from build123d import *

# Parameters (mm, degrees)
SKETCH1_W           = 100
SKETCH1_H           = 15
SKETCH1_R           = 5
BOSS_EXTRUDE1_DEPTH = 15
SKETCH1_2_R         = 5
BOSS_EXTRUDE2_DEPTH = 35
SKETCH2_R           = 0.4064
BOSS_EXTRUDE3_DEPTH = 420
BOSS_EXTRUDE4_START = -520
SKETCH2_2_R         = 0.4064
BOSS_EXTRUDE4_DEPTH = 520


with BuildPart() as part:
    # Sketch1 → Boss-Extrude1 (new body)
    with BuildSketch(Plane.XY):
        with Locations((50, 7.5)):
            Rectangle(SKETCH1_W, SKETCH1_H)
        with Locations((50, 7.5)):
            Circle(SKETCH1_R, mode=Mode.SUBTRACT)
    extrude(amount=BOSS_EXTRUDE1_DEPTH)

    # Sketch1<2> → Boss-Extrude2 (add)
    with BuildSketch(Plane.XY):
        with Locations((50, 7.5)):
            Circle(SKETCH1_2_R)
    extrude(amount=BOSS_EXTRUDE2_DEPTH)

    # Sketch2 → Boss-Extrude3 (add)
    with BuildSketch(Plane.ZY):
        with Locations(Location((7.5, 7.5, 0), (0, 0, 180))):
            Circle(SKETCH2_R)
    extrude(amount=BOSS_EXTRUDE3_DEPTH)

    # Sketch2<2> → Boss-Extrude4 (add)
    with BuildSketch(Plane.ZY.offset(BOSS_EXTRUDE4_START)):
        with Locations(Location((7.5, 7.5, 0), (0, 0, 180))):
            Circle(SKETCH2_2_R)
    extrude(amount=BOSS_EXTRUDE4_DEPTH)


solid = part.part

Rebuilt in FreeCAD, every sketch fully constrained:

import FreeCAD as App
import Part
import Sketcher
from FreeCAD import Vector
Q = App.Units.Quantity


def add_polygon(sketch, points):
    """Adds a closed chain of lines whose ends are joined by coincident constraints."""
    first, n = sketch.GeometryCount, len(points)
    for a, b in zip(points, points[1:] + points[:1]):
        sketch.addGeometry(Part.LineSegment(App.Vector(*a, 0), App.Vector(*b, 0)), False)
    for i in range(n):
        sketch.addConstraint(Sketcher.Constraint("Coincident", first + i, 2, first + (i + 1) % n, 1))

doc = App.newDocument("Part")
body = doc.addObject("PartDesign::Body", "Body")

sketch1 = doc.addObject("Sketcher::SketchObject", "Sketch")
body.addObject(sketch1)
sketch1.AttachmentSupport = (doc.XY_Plane, [""])
sketch1.MapMode = "FlatFace"
add_polygon(sketch1, [(0, 15), (0, 0), (100, 0), (100, 15)])
sketch1.addGeometry(Part.Circle(Vector(50, 8, 0), Vector(0, 0, 1), 5), False)
sketch1.addConstraint(Sketcher.Constraint("Vertical", 0))
sketch1.addConstraint(Sketcher.Constraint("Horizontal", 1))
sketch1.addConstraint(Sketcher.Constraint("Vertical", 2))
sketch1.addConstraint(Sketcher.Constraint("Horizontal", 3))
sketch1.addConstraint(Sketcher.Constraint("Coincident", 0, 2, -1, 1))
sketch1.addConstraint(Sketcher.Constraint("Diameter", 4, Q("10 mm")))
sketch1.addConstraint(Sketcher.Constraint("DistanceX", 1, 1, 1, 2, Q("100 mm")))
sketch1.addConstraint(Sketcher.Constraint("DistanceY", 0, 2, 0, 1, Q("15 mm")))
sketch1.addConstraint(Sketcher.Constraint("DistanceX", -1, 1, 4, 3, Q("50 mm")))
sketch1.addConstraint(Sketcher.Constraint("DistanceY", -1, 1, 4, 3, Q("7.5 mm")))
pad1 = doc.addObject("PartDesign::Pad", "Pad")
body.addObject(pad1)
pad1.Profile = sketch1
pad1.Length = 15

sketch2 = doc.addObject("Sketcher::SketchObject", "Sketch001")
body.addObject(sketch2)
sketch2.AttachmentSupport = (doc.XY_Plane, [""])
sketch2.MapMode = "FlatFace"
sketch2.addGeometry(Part.Circle(Vector(50, 8, 0), Vector(0, 0, 1), 5), False)
sketch2.addConstraint(Sketcher.Constraint("Diameter", 0, Q("10 mm")))
sketch2.addConstraint(Sketcher.Constraint("DistanceX", -1, 1, 0, 3, Q("50 mm")))
sketch2.addConstraint(Sketcher.Constraint("DistanceY", -1, 1, 0, 3, Q("7.5 mm")))
pad2 = doc.addObject("PartDesign::Pad", "Pad001")
body.addObject(pad2)
pad2.Profile = sketch2
pad2.Length = 35

sketch3 = doc.addObject("Sketcher::SketchObject", "Sketch002")
body.addObject(sketch3)
sketch3.AttachmentSupport = (doc.YZ_Plane, [""])
sketch3.MapMode = "FlatFace"
sketch3.addGeometry(Part.Circle(Vector(7.5, 7.5, 0), Vector(0, 0, 1), 0.41), False)
sketch3.addConstraint(Sketcher.Constraint("Diameter", 0, Q("0.8128 mm")))
sketch3.addConstraint(Sketcher.Constraint("DistanceX", -1, 1, 0, 3, Q("7.5 mm")))
sketch3.addConstraint(Sketcher.Constraint("DistanceY", -1, 1, 0, 3, Q("7.5 mm")))
pad3 = doc.addObject("PartDesign::Pad", "Pad002")
body.addObject(pad3)
pad3.Profile = sketch3
pad3.Length = 420
pad3.Reversed = True

sketch4 = doc.addObject("Sketcher::SketchObject", "Sketch003")
body.addObject(sketch4)
sketch4.AttachmentSupport = (doc.YZ_Plane, [""])
sketch4.MapMode = "FlatFace"
sketch4.AttachmentOffset = App.Placement(Vector(0, 0, 520), App.Rotation())
sketch4.addGeometry(Part.Circle(Vector(7.5, 7.5, 0), Vector(0, 0, 1), 0.41), False)
sketch4.addConstraint(Sketcher.Constraint("Diameter", 0, Q("0.8128 mm")))
sketch4.addConstraint(Sketcher.Constraint("DistanceX", -1, 1, 0, 3, Q("7.5 mm")))
sketch4.addConstraint(Sketcher.Constraint("DistanceY", -1, 1, 0, 3, Q("7.5 mm")))
pad4 = doc.addObject("PartDesign::Pad", "Pad003")
body.addObject(pad4)
pad4.Profile = sketch4
pad4.Length = 520
pad4.Reversed = True

doc.recompute()
